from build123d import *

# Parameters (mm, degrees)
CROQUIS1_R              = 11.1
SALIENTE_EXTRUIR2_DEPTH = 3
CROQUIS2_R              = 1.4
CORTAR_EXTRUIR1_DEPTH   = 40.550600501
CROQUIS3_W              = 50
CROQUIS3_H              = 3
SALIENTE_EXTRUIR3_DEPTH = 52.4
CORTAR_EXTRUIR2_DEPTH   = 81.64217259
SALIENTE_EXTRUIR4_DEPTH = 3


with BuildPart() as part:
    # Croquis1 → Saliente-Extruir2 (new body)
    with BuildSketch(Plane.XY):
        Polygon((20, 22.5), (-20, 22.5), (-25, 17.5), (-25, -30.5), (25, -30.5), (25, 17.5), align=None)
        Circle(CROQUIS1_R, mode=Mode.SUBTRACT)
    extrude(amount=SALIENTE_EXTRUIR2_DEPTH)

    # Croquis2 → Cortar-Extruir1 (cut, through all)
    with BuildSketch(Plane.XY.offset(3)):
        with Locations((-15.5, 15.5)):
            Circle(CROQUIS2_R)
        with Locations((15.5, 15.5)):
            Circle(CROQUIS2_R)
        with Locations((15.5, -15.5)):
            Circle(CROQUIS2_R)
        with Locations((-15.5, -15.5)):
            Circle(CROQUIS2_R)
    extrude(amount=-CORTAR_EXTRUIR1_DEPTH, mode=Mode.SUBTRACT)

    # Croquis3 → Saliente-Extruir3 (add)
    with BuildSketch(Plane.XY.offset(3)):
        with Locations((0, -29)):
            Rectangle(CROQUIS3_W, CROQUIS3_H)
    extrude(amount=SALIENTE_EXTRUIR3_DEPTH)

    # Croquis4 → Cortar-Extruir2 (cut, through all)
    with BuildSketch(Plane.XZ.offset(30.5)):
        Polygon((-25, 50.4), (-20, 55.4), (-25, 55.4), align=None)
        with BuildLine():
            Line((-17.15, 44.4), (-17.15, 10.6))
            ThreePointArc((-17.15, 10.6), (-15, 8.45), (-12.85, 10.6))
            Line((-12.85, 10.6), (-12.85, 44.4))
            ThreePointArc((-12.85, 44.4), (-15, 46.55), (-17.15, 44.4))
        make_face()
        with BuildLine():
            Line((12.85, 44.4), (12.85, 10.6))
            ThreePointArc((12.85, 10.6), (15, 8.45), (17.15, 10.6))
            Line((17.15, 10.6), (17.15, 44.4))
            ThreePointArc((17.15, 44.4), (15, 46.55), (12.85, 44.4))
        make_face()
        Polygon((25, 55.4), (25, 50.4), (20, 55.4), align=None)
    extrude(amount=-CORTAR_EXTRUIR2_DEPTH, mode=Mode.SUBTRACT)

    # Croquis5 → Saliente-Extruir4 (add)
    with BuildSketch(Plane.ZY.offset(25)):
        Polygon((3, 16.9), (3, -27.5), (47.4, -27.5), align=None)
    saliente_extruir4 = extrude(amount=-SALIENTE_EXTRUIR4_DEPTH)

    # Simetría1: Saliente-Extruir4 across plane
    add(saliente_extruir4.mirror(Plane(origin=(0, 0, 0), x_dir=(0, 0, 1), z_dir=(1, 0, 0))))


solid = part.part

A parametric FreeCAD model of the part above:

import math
import FreeCAD as App
import Part
import Sketcher
from FreeCAD import Vector


def add_polygon(sketch, points):
    """Adds a closed chain of lines whose ends are joined by coincident constraints."""
    first, n = sketch.GeometryCount, len(points)
    for a, b in zip(points, points[1:] + points[:1]):
        sketch.addGeometry(Part.LineSegment(App.Vector(*a, 0), App.Vector(*b, 0)), False)
    for i in range(n):
        sketch.addConstraint(Sketcher.Constraint("Coincident", first + i, 2, first + (i + 1) % n, 1))

doc = App.newDocument("Part")
body = doc.addObject("PartDesign::Body", "Body")

sketch1 = body.newObject("Sketcher::SketchObject", "Sketch")
sketch1.AttachmentSupport = (doc.getObject("XY_Plane"), [""])
sketch1.MapMode = "FlatFace"
add_polygon(sketch1, [(20, 22), (-20, 22), (-25, 18), (-25, -30), (25, -30), (25, 18)])
sketch1.addGeometry(Part.Circle(Vector(0, 0, 0), Vector(0, 0, 1), 11), False)
sketch1.addConstraint([
    Sketcher.Constraint("Horizontal", 0),
    Sketcher.Constraint("Vertical", 2),
    Sketcher.Constraint("Horizontal", 3),
    Sketcher.Constraint("Vertical", 4),
    Sketcher.Constraint("Coincident", 6, 3, -1, 1),
    Sketcher.Constraint("Symmetric", 1, 2, 4, 2, -2),
    Sketcher.Constraint("Perpendicular", 1, 5),
    Sketcher.Constraint("Equal", 1, 5),
    Sketcher.Constraint("Diameter", 6, 22.2),
    Sketcher.Constraint("DistanceX", 0, 2, 0, 1, 40.0),
    Sketcher.Constraint("DistanceX", 3, 1, 3, 2, 50.0),
    Sketcher.Constraint("DistanceY", 2, 2, 2, 1, 48.0),
    Sketcher.Constraint("DistanceY", -1, 1, 0, 2, 22.5),
])
pad1 = body.newObject("PartDesign::Pad", "Pad")
pad1.Profile = sketch1
pad1.Length = 3

sketch2 = body.newObject("Sketcher::SketchObject", "Sketch001")
sketch2.AttachmentSupport = (doc.getObject("XY_Plane"), [""])
sketch2.MapMode = "FlatFace"
sketch2.AttachmentOffset = App.Placement(Vector(0, 0, 3), App.Rotation())
sketch2.addGeometry([
    Part.Circle(Vector(-15.5, 15.5, 0), Vector(0, 0, 1), 1.4),
    Part.Circle(Vector(15.5, 15.5, 0), Vector(0, 0, 1), 1.4),
    Part.Circle(Vector(15.5, -15.5, 0), Vector(0, 0, 1), 1.4),
    Part.Circle(Vector(-15.5, -15.5, 0), Vector(0, 0, 1), 1.4),
], False)
sketch2.addConstraint([
    Sketcher.Constraint("Equal", 0, 1),
    Sketcher.Constraint("Equal", 1, 2),
    Sketcher.Constraint("Equal", 2, 3),
    Sketcher.Constraint("Symmetric", 0, 3, 2, 3, -1, 1),
    Sketcher.Constraint("Symmetric", 1, 3, 3, 3, -1, 1),
    Sketcher.Constraint("Symmetric", 0, 3, 1, 3, -2),
    Sketcher.Constraint("Diameter", 0, 2.8),
    Sketcher.Constraint("DistanceX", 0, 3, 1, 3, 31.0),
    Sketcher.Constraint("DistanceY", 2, 3, 1, 3, 31.0),
])
pocket1 = body.newObject("PartDesign::Pocket", "Pocket")
pocket1.Profile = sketch2
pocket1.Type = "ThroughAll"

sketch3 = body.newObject("Sketcher::SketchObject", "Sketch002")
sketch3.AttachmentSupport = (doc.getObject("XY_Plane"), [""])
sketch3.MapMode = "FlatFace"
sketch3.AttachmentOffset = App.Placement(Vector(0, 0, 3), App.Rotation())
add_polygon(sketch3, [(-25, -27.5), (-25, -30.5), (25, -30.5), (25, -27.5)])
sketch3.addConstraint([
    Sketcher.Constraint("Vertical", 0),
    Sketcher.Constraint("Horizontal", 1),
    Sketcher.Constraint("Vertical", 2),
    Sketcher.Constraint("Horizontal", 3),
    Sketcher.Constraint("DistanceX", 1, 1, 1, 2, 50.0),
    Sketcher.Constraint("DistanceY", 0, 2, 0, 1, 3.0),
    Sketcher.Constraint("DistanceX", 0, 2, -1, 1, 25.0),
    Sketcher.Constraint("DistanceY", 0, 2, -1, 1, 30.5),
])
pad2 = body.newObject("PartDesign::Pad", "Pad001")
pad2.Profile = sketch3
pad2.Length = 52.4

sketch4 = body.newObject("Sketcher::SketchObject", "Sketch003")
sketch4.AttachmentSupport = (doc.getObject("XZ_Plane"), [""])
sketch4.MapMode = "FlatFace"
sketch4.AttachmentOffset = App.Placement(Vector(0, 0, 30.5), App.Rotation())
add_polygon(sketch4, [(-25, 50.4), (-20, 55.4), (-25, 55.4)])
sketch4.addGeometry(Part.LineSegment(Vector(-17.1, 44.4, 0), Vector(-17.1, 10.6, 0)), False)
sketch4.addGeometry(Part.ArcOfCircle(Part.Circle(Vector(-15, 10.6, 0), Vector(0, 0, 1), 2.1), math.radians(180), math.radians(360)), False)
sketch4.addGeometry(Part.LineSegment(Vector(-12.8, 10.6, 0), Vector(-12.8, 44.4, 0)), False)
sketch4.addGeometry(Part.ArcOfCircle(Part.Circle(Vector(-15, 44.4, 0), Vector(0, 0, 1), 2.1), math.radians(0), math.radians(180)), False)
sketch4.addGeometry(Part.LineSegment(Vector(12.8, 44.4, 0), Vector(12.8, 10.6, 0)), False)
sketch4.addGeometry(Part.ArcOfCircle(Part.Circle(Vector(15, 10.6, 0), Vector(0, 0, 1), 2.1), math.radians(180), math.radians(360)), False)
sketch4.addGeometry(Part.LineSegment(Vector(17.1, 10.6, 0), Vector(17.1, 44.4, 0)), False)
sketch4.addGeometry(Part.ArcOfCircle(Part.Circle(Vector(15, 44.4, 0), Vector(0, 0, 1), 2.1), math.radians(0), math.radians(180)), False)
add_polygon(sketch4, [(25, 50.4), (25, 55.4), (20, 55.4)])
sketch4.addConstraint([
    Sketcher.Constraint("Tangent", 3, 2, 4, 1),
    Sketcher.Constraint("Tangent", 4, 2, 5, 1),
    Sketcher.Constraint("Tangent", 5, 2, 6, 1),
    Sketcher.Constraint("Tangent", 6, 2, 3, 1),
    Sketcher.Constraint("Tangent", 7, 2, 8, 1),
    Sketcher.Constraint("Tangent", 8, 2, 9, 1),
    Sketcher.Constraint("Tangent", 9, 2, 10, 1),
    Sketcher.Constraint("Tangent", 10, 2, 7, 1),
    Sketcher.Constraint("Horizontal", 1),
    Sketcher.Constraint("Vertical", 2),
    Sketcher.Constraint("Vertical", 3),
    Sketcher.Constraint("Vertical", 5),
    Sketcher.Constraint("Vertical", 7),
    Sketcher.Constraint("Vertical", 9),
    Sketcher.Constraint("Vertical", 11),
    Sketcher.Constraint("Horizontal", 12),
    Sketcher.Constraint("Equal", 6, 8),
    Sketcher.Constraint("Symmetric", 4, 3, 8, 3, -2),
    Sketcher.Constraint("Symmetric", 1, 2, 11, 2, -2),
    Sketcher.Constraint("Perpendicular", 0, 13),
    Sketcher.Constraint("Horizontal", 6, 3, 10, 3),
    Sketcher.Constraint("Horizontal", 2, 2, 13, 2),
    Sketcher.Constraint("Equal", 1, 12),
    Sketcher.Constraint("DistanceX", 1, 2, 1, 1, 5.0),
    Sketcher.Constraint("Radius", 4, 2.15),
    Sketcher.Constraint("DistanceY", 3, 2, 3, 1, 33.8),
    Sketcher.Constraint("DistanceX", 4, 3, -1, 1, 15.0),
    Sketcher.Constraint("DistanceX", 0, 2, -1, 1, 20.0),
    Sketcher.Constraint("DistanceY", 6, 3, 0, 2, 11.0),
    Sketcher.Constraint("DistanceY", -1, 1, 4, 3, 10.6),
])
pocket2 = body.newObject("PartDesign::Pocket", "Pocket001")
pocket2.Profile = sketch4
pocket2.Type = "ThroughAll"

sketch5 = body.newObject("Sketcher::SketchObject", "Sketch004")
sketch5.AttachmentSupport = (doc.getObject("YZ_Plane"), [""])
sketch5.MapMode = "FlatFace"
sketch5.AttachmentOffset = App.Placement(Vector(0, 0, -25), App.Rotation())
add_polygon(sketch5, [(17, 3), (-28, 3), (-28, 47)])
sketch5.addConstraint([
    Sketcher.Constraint("Horizontal", 0),
    Sketcher.Constraint("Vertical", 1),
    Sketcher.Constraint("Equal", 0, 1),
    Sketcher.Constraint("DistanceX", 0, 2, 0, 1, 44.4),
    Sketcher.Constraint("DistanceY", -1, 1, 0, 2, 3.0),
    Sketcher.Constraint("DistanceX", 0, 2, -1, 1, 27.5),
])
pad3 = body.newObject("PartDesign::Pad", "Pad002")
pad3.Profile = sketch5
pad3.Length = 3
doc.recompute()

mirrored = body.newObject("PartDesign::Mirrored", "Mirrored")
mirrored.Originals = [pad3]
mirrored.MirrorPlane = (doc.getObject("YZ_Plane"), [""])
body.Tip = mirrored

doc.recompute()
